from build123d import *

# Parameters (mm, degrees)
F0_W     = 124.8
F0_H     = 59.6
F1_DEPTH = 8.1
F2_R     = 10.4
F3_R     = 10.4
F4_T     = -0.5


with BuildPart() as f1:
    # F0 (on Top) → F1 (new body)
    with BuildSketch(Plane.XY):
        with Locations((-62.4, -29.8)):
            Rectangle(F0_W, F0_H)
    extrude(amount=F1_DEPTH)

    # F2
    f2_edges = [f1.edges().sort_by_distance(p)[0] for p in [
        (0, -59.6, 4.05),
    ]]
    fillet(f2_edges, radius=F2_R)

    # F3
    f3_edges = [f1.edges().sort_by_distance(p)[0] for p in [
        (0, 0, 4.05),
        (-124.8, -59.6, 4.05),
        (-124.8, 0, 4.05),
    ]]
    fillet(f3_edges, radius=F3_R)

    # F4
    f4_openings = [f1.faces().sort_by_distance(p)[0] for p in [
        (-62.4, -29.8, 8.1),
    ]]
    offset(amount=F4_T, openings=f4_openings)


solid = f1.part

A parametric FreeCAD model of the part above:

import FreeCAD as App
import Part
import Sketcher


def edges_at(feature, points):
    """Names of the edges that pass closest to the given points."""
    edges = feature.Shape.Edges
    near = lambda p: min(range(len(edges)), key=lambda i: edges[i].distToShape(Part.Vertex(*p))[0])
    return sorted({f"Edge{near(p) + 1}" for p in points})


def faces_at(feature, points):
    """Names of the faces that lie closest to the given points."""
    faces = feature.Shape.Faces
    near = lambda p: min(range(len(faces)), key=lambda i: faces[i].distToShape(Part.Vertex(*p))[0])
    return sorted({f"Face{near(p) + 1}" for p in points})

doc = App.newDocument("Part")
params = doc.addObject("Spreadsheet::Sheet", "Params")
for row, (alias, value) in enumerate([
    ("sketch1_width", "124.8 mm"),
    ("sketch1_height", "59.6 mm"),
    ("pad1_length", "8.1 mm"),
    ("fillet_radius", "10.4 mm"),
    ("fillet2_radius", "10.4 mm"),
    ("thickness_wall", "0.5 mm"),
], start=1):
    params.set(f"A{row}", alias)
    params.set(f"B{row}", "=" + value)
    params.setAlias(f"B{row}", alias)

body = doc.addObject("PartDesign::Body", "Body")

sketch1 = body.newObject("Sketcher::SketchObject", "Sketch")
sketch1.AttachmentSupport = (doc.getObject("XY_Plane"), [""])
sketch1.MapMode = "FlatFace"
sketch1.addGeometry(Part.LineSegment(App.Vector(-124.8, 0, 0), App.Vector(-124.8, -59.6, 0)), False)
sketch1.addGeometry(Part.LineSegment(App.Vector(-124.8, -59.6, 0), App.Vector(0, -59.6, 0)), False)
sketch1.addGeometry(Part.LineSegment(App.Vector(0, -59.6, 0), App.Vector(0, 0, 0)), False)
sketch1.addGeometry(Part.LineSegment(App.Vector(0, 0, 0), App.Vector(-124.8, 0, 0)), False)
sketch1.addConstraint(Sketcher.Constraint("Coincident", 0, 2, 1, 1))
sketch1.addConstraint(Sketcher.Constraint("Coincident", 1, 2, 2, 1))
sketch1.addConstraint(Sketcher.Constraint("Coincident", 2, 2, 3, 1))
sketch1.addConstraint(Sketcher.Constraint("Coincident", 3, 2, 0, 1))
sketch1.addConstraint(Sketcher.Constraint("Vertical", 0))
sketch1.addConstraint(Sketcher.Constraint("Horizontal", 1))
sketch1.addConstraint(Sketcher.Constraint("Vertical", 2))
sketch1.addConstraint(Sketcher.Constraint("Horizontal", 3))
sketch1.addConstraint(Sketcher.Constraint("Coincident", 2, 2, -1, 1))
sketch1.addConstraint(Sketcher.Constraint("DistanceX", 1, 1, 1, 2, 124.8))
sketch1.addConstraint(Sketcher.Constraint("DistanceY", 0, 2, 0, 1, 59.6))
sketch1.setExpression("Constraints[9]", "Params.sketch1_width")
sketch1.setExpression("Constraints[10]", "Params.sketch1_height")
pad1 = body.newObject("PartDesign::Pad", "Pad")
pad1.Profile = sketch1
pad1.setExpression("Length", "Params.pad1_length")
doc.recompute()

fillet = body.newObject("PartDesign::Fillet", "Fillet")
fillet.Base = (pad1, edges_at(pad1, [(0, -59.6, 4.05)]))
fillet.setExpression("Radius", "Params.fillet_radius")
doc.recompute()

fillet2 = body.newObject("PartDesign::Fillet", "Fillet001")
fillet2.Base = (fillet, edges_at(fillet, [(0, 0, 4.05), (-124.8, -59.6, 4.05), (-124.8, 0, 4.05)]))
fillet2.setExpression("Radius", "Params.fillet2_radius")
doc.recompute()

thickness = body.newObject("PartDesign::Thickness", "Thickness")
thickness.Base = (fillet2, faces_at(fillet2, [(-62.4, -29.8, 8.1)]))
thickness.setExpression("Value", "Params.thickness_wall")
thickness.Reversed = True
thickness.Join = "Arc"

doc.recompute()
